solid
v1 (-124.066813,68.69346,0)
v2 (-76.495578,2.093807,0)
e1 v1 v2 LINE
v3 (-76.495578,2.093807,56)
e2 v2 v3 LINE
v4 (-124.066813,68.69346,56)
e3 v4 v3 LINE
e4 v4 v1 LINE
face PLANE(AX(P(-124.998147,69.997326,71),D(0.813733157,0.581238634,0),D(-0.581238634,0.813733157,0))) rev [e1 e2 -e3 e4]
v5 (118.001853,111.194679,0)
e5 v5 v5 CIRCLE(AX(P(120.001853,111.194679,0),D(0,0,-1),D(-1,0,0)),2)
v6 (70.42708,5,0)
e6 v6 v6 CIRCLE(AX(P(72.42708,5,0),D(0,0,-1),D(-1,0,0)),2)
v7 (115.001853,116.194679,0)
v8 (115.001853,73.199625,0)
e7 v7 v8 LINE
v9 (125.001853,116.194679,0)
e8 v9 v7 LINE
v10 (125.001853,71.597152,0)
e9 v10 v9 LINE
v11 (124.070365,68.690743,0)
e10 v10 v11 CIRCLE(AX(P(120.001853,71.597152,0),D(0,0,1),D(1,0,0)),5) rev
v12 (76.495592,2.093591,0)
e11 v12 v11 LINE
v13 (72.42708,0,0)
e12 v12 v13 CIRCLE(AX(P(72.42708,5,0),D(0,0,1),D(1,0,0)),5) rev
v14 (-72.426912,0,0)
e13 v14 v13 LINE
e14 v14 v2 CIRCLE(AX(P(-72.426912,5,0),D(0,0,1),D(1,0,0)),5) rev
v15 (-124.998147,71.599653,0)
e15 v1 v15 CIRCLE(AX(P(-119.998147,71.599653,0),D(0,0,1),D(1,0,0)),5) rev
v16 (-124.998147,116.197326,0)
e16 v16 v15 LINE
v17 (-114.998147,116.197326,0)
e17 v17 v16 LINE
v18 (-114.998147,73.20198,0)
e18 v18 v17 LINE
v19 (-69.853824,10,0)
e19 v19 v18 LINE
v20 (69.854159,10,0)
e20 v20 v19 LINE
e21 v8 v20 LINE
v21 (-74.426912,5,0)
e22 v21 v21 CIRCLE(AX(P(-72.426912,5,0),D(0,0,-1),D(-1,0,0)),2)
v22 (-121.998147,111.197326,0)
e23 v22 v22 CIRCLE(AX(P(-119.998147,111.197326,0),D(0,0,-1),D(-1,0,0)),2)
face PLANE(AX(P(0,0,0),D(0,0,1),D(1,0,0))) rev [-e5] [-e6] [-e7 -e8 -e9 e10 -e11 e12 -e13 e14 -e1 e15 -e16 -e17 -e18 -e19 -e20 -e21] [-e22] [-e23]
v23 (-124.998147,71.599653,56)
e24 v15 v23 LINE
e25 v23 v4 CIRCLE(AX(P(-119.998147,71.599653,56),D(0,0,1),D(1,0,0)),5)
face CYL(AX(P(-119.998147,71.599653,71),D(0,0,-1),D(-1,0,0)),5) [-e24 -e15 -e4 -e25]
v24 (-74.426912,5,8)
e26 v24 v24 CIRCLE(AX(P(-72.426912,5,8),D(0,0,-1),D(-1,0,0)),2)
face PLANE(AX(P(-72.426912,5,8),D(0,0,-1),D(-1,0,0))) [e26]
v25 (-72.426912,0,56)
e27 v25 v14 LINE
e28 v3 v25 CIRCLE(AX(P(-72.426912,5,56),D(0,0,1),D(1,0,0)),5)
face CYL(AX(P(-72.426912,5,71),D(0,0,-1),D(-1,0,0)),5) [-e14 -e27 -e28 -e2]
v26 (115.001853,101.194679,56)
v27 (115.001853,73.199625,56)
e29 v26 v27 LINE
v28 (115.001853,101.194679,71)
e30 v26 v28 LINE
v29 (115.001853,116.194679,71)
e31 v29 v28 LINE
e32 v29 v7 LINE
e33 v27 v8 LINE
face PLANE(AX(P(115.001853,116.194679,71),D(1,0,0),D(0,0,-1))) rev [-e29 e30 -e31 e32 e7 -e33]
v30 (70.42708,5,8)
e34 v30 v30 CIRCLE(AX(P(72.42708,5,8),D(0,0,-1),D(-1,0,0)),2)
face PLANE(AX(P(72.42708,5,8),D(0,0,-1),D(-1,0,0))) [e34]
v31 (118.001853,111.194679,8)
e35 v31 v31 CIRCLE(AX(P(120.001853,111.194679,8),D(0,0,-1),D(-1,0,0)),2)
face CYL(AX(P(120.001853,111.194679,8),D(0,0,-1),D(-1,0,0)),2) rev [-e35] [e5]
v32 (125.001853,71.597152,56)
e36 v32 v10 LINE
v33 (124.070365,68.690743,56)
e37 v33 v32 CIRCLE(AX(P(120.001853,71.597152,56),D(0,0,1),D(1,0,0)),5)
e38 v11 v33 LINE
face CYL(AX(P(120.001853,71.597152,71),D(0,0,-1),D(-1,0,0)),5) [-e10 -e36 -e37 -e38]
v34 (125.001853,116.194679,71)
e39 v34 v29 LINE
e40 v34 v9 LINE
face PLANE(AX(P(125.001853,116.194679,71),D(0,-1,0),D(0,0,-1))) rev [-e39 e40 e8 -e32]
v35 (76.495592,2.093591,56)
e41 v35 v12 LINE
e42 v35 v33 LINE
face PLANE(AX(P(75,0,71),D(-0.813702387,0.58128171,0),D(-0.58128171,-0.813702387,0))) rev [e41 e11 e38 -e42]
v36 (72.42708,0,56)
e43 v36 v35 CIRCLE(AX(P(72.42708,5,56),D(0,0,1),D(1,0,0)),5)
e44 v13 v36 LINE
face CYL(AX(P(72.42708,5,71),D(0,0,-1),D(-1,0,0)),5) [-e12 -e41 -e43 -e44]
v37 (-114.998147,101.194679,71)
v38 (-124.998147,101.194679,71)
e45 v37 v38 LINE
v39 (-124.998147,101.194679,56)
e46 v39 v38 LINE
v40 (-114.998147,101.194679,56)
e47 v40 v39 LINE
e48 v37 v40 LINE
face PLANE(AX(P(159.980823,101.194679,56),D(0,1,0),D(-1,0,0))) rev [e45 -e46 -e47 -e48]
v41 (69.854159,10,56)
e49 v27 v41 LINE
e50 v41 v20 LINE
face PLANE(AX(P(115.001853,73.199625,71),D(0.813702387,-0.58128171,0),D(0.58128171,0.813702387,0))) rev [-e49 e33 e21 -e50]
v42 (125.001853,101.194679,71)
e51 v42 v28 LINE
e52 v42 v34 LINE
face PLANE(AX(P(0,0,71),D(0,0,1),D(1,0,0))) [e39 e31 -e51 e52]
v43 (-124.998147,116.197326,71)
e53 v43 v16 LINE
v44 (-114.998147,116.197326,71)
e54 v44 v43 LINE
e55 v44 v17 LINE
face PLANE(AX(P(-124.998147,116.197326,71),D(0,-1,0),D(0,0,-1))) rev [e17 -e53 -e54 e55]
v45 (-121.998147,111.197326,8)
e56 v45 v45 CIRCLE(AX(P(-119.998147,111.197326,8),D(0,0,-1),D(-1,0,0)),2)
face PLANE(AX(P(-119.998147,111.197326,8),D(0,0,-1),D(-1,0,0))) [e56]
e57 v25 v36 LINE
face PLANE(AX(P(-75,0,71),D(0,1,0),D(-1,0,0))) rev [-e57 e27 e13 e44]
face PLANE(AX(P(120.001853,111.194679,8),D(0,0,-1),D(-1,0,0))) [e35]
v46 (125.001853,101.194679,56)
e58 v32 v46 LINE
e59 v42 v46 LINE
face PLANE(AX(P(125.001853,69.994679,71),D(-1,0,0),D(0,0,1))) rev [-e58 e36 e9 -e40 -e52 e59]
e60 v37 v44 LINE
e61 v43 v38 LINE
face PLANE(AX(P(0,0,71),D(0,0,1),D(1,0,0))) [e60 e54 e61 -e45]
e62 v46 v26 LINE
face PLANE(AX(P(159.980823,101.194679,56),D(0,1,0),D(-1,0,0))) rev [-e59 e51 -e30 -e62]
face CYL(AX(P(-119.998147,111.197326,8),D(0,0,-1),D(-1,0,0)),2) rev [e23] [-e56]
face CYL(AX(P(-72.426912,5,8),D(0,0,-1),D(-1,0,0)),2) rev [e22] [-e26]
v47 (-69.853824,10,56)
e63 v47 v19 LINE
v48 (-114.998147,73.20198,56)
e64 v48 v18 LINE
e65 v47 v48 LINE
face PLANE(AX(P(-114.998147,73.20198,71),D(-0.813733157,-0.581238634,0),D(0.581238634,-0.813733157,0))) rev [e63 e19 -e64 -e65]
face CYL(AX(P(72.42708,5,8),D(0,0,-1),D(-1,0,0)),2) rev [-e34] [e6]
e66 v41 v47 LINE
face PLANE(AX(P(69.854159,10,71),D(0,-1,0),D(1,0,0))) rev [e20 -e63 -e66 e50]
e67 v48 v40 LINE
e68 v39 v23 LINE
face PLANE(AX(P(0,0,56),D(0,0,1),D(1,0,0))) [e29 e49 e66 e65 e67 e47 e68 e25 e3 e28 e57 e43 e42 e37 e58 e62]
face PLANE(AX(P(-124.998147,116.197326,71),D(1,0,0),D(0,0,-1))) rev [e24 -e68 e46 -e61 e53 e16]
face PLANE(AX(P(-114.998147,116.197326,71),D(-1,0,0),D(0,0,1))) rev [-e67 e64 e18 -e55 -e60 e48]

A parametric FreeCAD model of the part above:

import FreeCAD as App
import Part
import Sketcher
Q = App.Units.Quantity


def edges_at(feature, points):
    """Names of the edges that pass closest to the given points."""
    edges = feature.Shape.Edges
    near = lambda p: min(range(len(edges)), key=lambda i: edges[i].distToShape(Part.Vertex(*p))[0])
    return sorted({f"Edge{near(p) + 1}" for p in points})

doc = App.newDocument("Part")
body = doc.addObject("PartDesign::Body", "Body")

# Sketch on XY plane
sketch1 = body.newObject("Sketcher::SketchObject", "Sketch")
sketch1.AttachmentSupport = (doc.getObject("XY_Plane"), [""])
sketch1.MapMode = "FlatFace"
sketch1.addGeometry(Part.LineSegment(App.Vector(-115, 116, 0), App.Vector(-125, 116, 0)), False)
sketch1.addGeometry(Part.LineSegment(App.Vector(-125, 116, 0), App.Vector(-125, 70, 0)), False)
sketch1.addGeometry(Part.LineSegment(App.Vector(-125, 70, 0), App.Vector(-75, 0, 0)), False)
sketch1.addGeometry(Part.LineSegment(App.Vector(-75, 0, 0), App.Vector(75, 0, 0)), False)
sketch1.addGeometry(Part.LineSegment(App.Vector(75, 0, 0), App.Vector(125, 70, 0)), False)
sketch1.addGeometry(Part.LineSegment(App.Vector(125, 70, 0), App.Vector(125, 116, 0)), False)
sketch1.addGeometry(Part.LineSegment(App.Vector(125, 116, 0), App.Vector(115, 116, 0)), False)
sketch1.addGeometry(Part.LineSegment(App.Vector(115, 116, 0), App.Vector(115, 73, 0)), False)
sketch1.addGeometry(Part.LineSegment(App.Vector(115, 73, 0), App.Vector(70, 10, 0)), False)
sketch1.addGeometry(Part.LineSegment(App.Vector(70, 10, 0), App.Vector(-70, 10, 0)), False)
sketch1.addGeometry(Part.LineSegment(App.Vector(-70, 10, 0), App.Vector(-115, 73, 0)), False)
sketch1.addGeometry(Part.LineSegment(App.Vector(-115, 73, 0), App.Vector(-115, 116, 0)), False)
sketch1.addConstraint(Sketcher.Constraint("Coincident", 0, 2, 1, 1))
sketch1.addConstraint(Sketcher.Constraint("Coincident", 1, 2, 2, 1))
sketch1.addConstraint(Sketcher.Constraint("Coincident", 2, 2, 3, 1))
sketch1.addConstraint(Sketcher.Constraint("Coincident", 3, 2, 4, 1))
sketch1.addConstraint(Sketcher.Constraint("Coincident", 4, 2, 5, 1))
sketch1.addConstraint(Sketcher.Constraint("Coincident", 5, 2, 6, 1))
sketch1.addConstraint(Sketcher.Constraint("Coincident", 6, 2, 7, 1))
sketch1.addConstraint(Sketcher.Constraint("Coincident", 7, 2, 8, 1))
sketch1.addConstraint(Sketcher.Constraint("Coincident", 8, 2, 9, 1))
sketch1.addConstraint(Sketcher.Constraint("Coincident", 9, 2, 10, 1))
sketch1.addConstraint(Sketcher.Constraint("Coincident", 10, 2, 11, 1))
sketch1.addConstraint(Sketcher.Constraint("Coincident", 11, 2, 0, 1))
sketch1.addConstraint(Sketcher.Constraint("Horizontal", 0))
sketch1.addConstraint(Sketcher.Constraint("Vertical", 1))
sketch1.addConstraint(Sketcher.Constraint("Horizontal", 3))
sketch1.addConstraint(Sketcher.Constraint("Vertical", 5))
sketch1.addConstraint(Sketcher.Constraint("Horizontal", 6))
sketch1.addConstraint(Sketcher.Constraint("Vertical", 7))
sketch1.addConstraint(Sketcher.Constraint("Horizontal", 9))
sketch1.addConstraint(Sketcher.Constraint("Vertical", 11))
sketch1.addConstraint(Sketcher.Constraint("Symmetric", 2, 2, 3, 2, -1, 1))
sketch1.addConstraint(Sketcher.Constraint("Parallel", 4, 8))
sketch1.addConstraint(Sketcher.Constraint("Parallel", 2, 10))
sketch1.addConstraint(Sketcher.Constraint("Equal", 0, 6))
sketch1.addConstraint(Sketcher.Constraint("Equal", 1, 5))
sketch1.addConstraint(Sketcher.Constraint("Equal", 2, 4))
sketch1.addConstraint(Sketcher.Constraint("DistanceX", 0, 2, 0, 1, Q("10 mm")))
sketch1.addConstraint(Sketcher.Constraint("DistanceX", 3, 1, 3, 2, Q("150 mm")))
sketch1.addConstraint(Sketcher.Constraint("DistanceY", 1, 2, 1, 1, Q("46.2 mm")))
sketch1.addConstraint(Sketcher.Constraint("DistanceY", -1, 1, 8, 2, Q("10 mm")))
sketch1.addConstraint(Sketcher.Constraint("DistanceX", 1, 2, 4, 2, Q("250 mm")))
sketch1.addConstraint(Sketcher.Constraint("Distance", 2, Q("86.02 mm")))
sketch1.addConstraint(Sketcher.Constraint("Distance", 10, Q("77.669171 mm")))
sketch1.addConstraint(Sketcher.Constraint("DistanceX", 9, 2, 9, 1, Q("139.707984 mm")))
sketch1.addConstraint(Sketcher.Constraint("DistanceY", 7, 2, 7, 1, Q("42.995055 mm")))
pad1 = body.newObject("PartDesign::Pad", "Pad")
pad1.Profile = sketch1
pad1.Length = 71

# Sketch on XY plane
sketch2 = body.newObject("Sketcher::SketchObject", "Sketch001")
sketch2.AttachmentSupport = (doc.getObject("XY_Plane"), [""])
sketch2.MapMode = "FlatFace"
sketch2.AttachmentOffset = App.Placement(App.Vector(0, 0, 71), App.Rotation())
sketch2.addGeometry(Part.LineSegment(App.Vector(-165, 101, 0), App.Vector(-165, -16, 0)), False)
sketch2.addGeometry(Part.LineSegment(App.Vector(-165, -16, 0), App.Vector(160, -16, 0)), False)
sketch2.addGeometry(Part.LineSegment(App.Vector(160, -16, 0), App.Vector(160, 101, 0)), False)
sketch2.addGeometry(Part.LineSegment(App.Vector(160, 101, 0), App.Vector(-165, 101, 0)), False)
sketch2.addConstraint(Sketcher.Constraint("Coincident", 0, 2, 1, 1))
sketch2.addConstraint(Sketcher.Constraint("Coincident", 1, 2, 2, 1))
sketch2.addConstraint(Sketcher.Constraint("Coincident", 2, 2, 3, 1))
sketch2.addConstraint(Sketcher.Constraint("Coincident", 3, 2, 0, 1))
sketch2.addConstraint(Sketcher.Constraint("Vertical", 0))
sketch2.addConstraint(Sketcher.Constraint("Horizontal", 1))
sketch2.addConstraint(Sketcher.Constraint("Vertical", 2))
sketch2.addConstraint(Sketcher.Constraint("Horizontal", 3))
sketch2.addConstraint(Sketcher.Constraint("DistanceX", 0, 2, -1, 1, Q("164.932399 mm")))
sketch2.addConstraint(Sketcher.Constraint("DistanceX", 1, 1, 1, 2, Q("324.913222 mm")))
sketch2.addConstraint(Sketcher.Constraint("DistanceY", 0, 2, 0, 1, Q("116.889513 mm")))
sketch2.addConstraint(Sketcher.Constraint("DistanceY", -1, 1, 2, 2, Q("101.194679 mm")))
pocket1 = body.newObject("PartDesign::Pocket", "Pocket")
pocket1.Profile = sketch2
pocket1.Length = 15
doc.recompute()

fillet = body.newObject("PartDesign::Fillet", "Fillet")
fillet.Base = (pocket1, edges_at(pocket1, [
    (125.002, 69.995, 28),
    (75, 0, 28),
    (-75, 0, 28),
    (-124.998, 69.997, 28),
]))
fillet.Radius = 5

# Sketch on XY plane
sketch3 = body.newObject("Sketcher::SketchObject", "Sketch002")
sketch3.AttachmentSupport = (doc.getObject("XY_Plane"), [""])
sketch3.MapMode = "FlatFace"
sketch3.addGeometry(Part.Circle(App.Vector(72.4, 5, 0), App.Vector(0, 0, 1), 2), False)
sketch3.addGeometry(Part.Circle(App.Vector(-72.4, 5, 0), App.Vector(0, 0, 1), 2), False)
sketch3.addGeometry(Part.Circle(App.Vector(120, 111.2, 0), App.Vector(0, 0, 1), 2), False)
sketch3.addGeometry(Part.Circle(App.Vector(-120, 111.2, 0), App.Vector(0, 0, 1), 2), False)
sketch3.addConstraint(Sketcher.Constraint("Equal", 0, 1))
sketch3.addConstraint(Sketcher.Constraint("Equal", 1, 2))
sketch3.addConstraint(Sketcher.Constraint("Equal", 2, 3))
sketch3.addConstraint(Sketcher.Constraint("Horizontal", 0, 3, 1, 3))
sketch3.addConstraint(Sketcher.Constraint("Diameter", 0, Q("4 mm")))
sketch3.addConstraint(Sketcher.Constraint("DistanceY", -1, 1, 0, 3, Q("5 mm")))
sketch3.addConstraint(Sketcher.Constraint("DistanceX", 3, 3, 2, 3, Q("240 mm")))
sketch3.addConstraint(Sketcher.Constraint("DistanceX", -1, 1, 0, 3, Q("72.42708 mm")))
sketch3.addConstraint(Sketcher.Constraint("DistanceY", -1, 1, 2, 3, Q("111.194679 mm")))
sketch3.addConstraint(Sketcher.Constraint("DistanceX", 1, 3, 0, 3, Q("144.853992 mm")))
sketch3.addConstraint(Sketcher.Constraint("DistanceX", -1, 1, 2, 3, Q("120.001853 mm")))
sketch3.addConstraint(Sketcher.Constraint("DistanceY", -1, 1, 3, 3, Q("111.197326 mm")))
pocket2 = body.newObject("PartDesign::Pocket", "Pocket001")
pocket2.Profile = sketch3
pocket2.Length = 8
pocket2.Reversed = True

doc.recompute()
